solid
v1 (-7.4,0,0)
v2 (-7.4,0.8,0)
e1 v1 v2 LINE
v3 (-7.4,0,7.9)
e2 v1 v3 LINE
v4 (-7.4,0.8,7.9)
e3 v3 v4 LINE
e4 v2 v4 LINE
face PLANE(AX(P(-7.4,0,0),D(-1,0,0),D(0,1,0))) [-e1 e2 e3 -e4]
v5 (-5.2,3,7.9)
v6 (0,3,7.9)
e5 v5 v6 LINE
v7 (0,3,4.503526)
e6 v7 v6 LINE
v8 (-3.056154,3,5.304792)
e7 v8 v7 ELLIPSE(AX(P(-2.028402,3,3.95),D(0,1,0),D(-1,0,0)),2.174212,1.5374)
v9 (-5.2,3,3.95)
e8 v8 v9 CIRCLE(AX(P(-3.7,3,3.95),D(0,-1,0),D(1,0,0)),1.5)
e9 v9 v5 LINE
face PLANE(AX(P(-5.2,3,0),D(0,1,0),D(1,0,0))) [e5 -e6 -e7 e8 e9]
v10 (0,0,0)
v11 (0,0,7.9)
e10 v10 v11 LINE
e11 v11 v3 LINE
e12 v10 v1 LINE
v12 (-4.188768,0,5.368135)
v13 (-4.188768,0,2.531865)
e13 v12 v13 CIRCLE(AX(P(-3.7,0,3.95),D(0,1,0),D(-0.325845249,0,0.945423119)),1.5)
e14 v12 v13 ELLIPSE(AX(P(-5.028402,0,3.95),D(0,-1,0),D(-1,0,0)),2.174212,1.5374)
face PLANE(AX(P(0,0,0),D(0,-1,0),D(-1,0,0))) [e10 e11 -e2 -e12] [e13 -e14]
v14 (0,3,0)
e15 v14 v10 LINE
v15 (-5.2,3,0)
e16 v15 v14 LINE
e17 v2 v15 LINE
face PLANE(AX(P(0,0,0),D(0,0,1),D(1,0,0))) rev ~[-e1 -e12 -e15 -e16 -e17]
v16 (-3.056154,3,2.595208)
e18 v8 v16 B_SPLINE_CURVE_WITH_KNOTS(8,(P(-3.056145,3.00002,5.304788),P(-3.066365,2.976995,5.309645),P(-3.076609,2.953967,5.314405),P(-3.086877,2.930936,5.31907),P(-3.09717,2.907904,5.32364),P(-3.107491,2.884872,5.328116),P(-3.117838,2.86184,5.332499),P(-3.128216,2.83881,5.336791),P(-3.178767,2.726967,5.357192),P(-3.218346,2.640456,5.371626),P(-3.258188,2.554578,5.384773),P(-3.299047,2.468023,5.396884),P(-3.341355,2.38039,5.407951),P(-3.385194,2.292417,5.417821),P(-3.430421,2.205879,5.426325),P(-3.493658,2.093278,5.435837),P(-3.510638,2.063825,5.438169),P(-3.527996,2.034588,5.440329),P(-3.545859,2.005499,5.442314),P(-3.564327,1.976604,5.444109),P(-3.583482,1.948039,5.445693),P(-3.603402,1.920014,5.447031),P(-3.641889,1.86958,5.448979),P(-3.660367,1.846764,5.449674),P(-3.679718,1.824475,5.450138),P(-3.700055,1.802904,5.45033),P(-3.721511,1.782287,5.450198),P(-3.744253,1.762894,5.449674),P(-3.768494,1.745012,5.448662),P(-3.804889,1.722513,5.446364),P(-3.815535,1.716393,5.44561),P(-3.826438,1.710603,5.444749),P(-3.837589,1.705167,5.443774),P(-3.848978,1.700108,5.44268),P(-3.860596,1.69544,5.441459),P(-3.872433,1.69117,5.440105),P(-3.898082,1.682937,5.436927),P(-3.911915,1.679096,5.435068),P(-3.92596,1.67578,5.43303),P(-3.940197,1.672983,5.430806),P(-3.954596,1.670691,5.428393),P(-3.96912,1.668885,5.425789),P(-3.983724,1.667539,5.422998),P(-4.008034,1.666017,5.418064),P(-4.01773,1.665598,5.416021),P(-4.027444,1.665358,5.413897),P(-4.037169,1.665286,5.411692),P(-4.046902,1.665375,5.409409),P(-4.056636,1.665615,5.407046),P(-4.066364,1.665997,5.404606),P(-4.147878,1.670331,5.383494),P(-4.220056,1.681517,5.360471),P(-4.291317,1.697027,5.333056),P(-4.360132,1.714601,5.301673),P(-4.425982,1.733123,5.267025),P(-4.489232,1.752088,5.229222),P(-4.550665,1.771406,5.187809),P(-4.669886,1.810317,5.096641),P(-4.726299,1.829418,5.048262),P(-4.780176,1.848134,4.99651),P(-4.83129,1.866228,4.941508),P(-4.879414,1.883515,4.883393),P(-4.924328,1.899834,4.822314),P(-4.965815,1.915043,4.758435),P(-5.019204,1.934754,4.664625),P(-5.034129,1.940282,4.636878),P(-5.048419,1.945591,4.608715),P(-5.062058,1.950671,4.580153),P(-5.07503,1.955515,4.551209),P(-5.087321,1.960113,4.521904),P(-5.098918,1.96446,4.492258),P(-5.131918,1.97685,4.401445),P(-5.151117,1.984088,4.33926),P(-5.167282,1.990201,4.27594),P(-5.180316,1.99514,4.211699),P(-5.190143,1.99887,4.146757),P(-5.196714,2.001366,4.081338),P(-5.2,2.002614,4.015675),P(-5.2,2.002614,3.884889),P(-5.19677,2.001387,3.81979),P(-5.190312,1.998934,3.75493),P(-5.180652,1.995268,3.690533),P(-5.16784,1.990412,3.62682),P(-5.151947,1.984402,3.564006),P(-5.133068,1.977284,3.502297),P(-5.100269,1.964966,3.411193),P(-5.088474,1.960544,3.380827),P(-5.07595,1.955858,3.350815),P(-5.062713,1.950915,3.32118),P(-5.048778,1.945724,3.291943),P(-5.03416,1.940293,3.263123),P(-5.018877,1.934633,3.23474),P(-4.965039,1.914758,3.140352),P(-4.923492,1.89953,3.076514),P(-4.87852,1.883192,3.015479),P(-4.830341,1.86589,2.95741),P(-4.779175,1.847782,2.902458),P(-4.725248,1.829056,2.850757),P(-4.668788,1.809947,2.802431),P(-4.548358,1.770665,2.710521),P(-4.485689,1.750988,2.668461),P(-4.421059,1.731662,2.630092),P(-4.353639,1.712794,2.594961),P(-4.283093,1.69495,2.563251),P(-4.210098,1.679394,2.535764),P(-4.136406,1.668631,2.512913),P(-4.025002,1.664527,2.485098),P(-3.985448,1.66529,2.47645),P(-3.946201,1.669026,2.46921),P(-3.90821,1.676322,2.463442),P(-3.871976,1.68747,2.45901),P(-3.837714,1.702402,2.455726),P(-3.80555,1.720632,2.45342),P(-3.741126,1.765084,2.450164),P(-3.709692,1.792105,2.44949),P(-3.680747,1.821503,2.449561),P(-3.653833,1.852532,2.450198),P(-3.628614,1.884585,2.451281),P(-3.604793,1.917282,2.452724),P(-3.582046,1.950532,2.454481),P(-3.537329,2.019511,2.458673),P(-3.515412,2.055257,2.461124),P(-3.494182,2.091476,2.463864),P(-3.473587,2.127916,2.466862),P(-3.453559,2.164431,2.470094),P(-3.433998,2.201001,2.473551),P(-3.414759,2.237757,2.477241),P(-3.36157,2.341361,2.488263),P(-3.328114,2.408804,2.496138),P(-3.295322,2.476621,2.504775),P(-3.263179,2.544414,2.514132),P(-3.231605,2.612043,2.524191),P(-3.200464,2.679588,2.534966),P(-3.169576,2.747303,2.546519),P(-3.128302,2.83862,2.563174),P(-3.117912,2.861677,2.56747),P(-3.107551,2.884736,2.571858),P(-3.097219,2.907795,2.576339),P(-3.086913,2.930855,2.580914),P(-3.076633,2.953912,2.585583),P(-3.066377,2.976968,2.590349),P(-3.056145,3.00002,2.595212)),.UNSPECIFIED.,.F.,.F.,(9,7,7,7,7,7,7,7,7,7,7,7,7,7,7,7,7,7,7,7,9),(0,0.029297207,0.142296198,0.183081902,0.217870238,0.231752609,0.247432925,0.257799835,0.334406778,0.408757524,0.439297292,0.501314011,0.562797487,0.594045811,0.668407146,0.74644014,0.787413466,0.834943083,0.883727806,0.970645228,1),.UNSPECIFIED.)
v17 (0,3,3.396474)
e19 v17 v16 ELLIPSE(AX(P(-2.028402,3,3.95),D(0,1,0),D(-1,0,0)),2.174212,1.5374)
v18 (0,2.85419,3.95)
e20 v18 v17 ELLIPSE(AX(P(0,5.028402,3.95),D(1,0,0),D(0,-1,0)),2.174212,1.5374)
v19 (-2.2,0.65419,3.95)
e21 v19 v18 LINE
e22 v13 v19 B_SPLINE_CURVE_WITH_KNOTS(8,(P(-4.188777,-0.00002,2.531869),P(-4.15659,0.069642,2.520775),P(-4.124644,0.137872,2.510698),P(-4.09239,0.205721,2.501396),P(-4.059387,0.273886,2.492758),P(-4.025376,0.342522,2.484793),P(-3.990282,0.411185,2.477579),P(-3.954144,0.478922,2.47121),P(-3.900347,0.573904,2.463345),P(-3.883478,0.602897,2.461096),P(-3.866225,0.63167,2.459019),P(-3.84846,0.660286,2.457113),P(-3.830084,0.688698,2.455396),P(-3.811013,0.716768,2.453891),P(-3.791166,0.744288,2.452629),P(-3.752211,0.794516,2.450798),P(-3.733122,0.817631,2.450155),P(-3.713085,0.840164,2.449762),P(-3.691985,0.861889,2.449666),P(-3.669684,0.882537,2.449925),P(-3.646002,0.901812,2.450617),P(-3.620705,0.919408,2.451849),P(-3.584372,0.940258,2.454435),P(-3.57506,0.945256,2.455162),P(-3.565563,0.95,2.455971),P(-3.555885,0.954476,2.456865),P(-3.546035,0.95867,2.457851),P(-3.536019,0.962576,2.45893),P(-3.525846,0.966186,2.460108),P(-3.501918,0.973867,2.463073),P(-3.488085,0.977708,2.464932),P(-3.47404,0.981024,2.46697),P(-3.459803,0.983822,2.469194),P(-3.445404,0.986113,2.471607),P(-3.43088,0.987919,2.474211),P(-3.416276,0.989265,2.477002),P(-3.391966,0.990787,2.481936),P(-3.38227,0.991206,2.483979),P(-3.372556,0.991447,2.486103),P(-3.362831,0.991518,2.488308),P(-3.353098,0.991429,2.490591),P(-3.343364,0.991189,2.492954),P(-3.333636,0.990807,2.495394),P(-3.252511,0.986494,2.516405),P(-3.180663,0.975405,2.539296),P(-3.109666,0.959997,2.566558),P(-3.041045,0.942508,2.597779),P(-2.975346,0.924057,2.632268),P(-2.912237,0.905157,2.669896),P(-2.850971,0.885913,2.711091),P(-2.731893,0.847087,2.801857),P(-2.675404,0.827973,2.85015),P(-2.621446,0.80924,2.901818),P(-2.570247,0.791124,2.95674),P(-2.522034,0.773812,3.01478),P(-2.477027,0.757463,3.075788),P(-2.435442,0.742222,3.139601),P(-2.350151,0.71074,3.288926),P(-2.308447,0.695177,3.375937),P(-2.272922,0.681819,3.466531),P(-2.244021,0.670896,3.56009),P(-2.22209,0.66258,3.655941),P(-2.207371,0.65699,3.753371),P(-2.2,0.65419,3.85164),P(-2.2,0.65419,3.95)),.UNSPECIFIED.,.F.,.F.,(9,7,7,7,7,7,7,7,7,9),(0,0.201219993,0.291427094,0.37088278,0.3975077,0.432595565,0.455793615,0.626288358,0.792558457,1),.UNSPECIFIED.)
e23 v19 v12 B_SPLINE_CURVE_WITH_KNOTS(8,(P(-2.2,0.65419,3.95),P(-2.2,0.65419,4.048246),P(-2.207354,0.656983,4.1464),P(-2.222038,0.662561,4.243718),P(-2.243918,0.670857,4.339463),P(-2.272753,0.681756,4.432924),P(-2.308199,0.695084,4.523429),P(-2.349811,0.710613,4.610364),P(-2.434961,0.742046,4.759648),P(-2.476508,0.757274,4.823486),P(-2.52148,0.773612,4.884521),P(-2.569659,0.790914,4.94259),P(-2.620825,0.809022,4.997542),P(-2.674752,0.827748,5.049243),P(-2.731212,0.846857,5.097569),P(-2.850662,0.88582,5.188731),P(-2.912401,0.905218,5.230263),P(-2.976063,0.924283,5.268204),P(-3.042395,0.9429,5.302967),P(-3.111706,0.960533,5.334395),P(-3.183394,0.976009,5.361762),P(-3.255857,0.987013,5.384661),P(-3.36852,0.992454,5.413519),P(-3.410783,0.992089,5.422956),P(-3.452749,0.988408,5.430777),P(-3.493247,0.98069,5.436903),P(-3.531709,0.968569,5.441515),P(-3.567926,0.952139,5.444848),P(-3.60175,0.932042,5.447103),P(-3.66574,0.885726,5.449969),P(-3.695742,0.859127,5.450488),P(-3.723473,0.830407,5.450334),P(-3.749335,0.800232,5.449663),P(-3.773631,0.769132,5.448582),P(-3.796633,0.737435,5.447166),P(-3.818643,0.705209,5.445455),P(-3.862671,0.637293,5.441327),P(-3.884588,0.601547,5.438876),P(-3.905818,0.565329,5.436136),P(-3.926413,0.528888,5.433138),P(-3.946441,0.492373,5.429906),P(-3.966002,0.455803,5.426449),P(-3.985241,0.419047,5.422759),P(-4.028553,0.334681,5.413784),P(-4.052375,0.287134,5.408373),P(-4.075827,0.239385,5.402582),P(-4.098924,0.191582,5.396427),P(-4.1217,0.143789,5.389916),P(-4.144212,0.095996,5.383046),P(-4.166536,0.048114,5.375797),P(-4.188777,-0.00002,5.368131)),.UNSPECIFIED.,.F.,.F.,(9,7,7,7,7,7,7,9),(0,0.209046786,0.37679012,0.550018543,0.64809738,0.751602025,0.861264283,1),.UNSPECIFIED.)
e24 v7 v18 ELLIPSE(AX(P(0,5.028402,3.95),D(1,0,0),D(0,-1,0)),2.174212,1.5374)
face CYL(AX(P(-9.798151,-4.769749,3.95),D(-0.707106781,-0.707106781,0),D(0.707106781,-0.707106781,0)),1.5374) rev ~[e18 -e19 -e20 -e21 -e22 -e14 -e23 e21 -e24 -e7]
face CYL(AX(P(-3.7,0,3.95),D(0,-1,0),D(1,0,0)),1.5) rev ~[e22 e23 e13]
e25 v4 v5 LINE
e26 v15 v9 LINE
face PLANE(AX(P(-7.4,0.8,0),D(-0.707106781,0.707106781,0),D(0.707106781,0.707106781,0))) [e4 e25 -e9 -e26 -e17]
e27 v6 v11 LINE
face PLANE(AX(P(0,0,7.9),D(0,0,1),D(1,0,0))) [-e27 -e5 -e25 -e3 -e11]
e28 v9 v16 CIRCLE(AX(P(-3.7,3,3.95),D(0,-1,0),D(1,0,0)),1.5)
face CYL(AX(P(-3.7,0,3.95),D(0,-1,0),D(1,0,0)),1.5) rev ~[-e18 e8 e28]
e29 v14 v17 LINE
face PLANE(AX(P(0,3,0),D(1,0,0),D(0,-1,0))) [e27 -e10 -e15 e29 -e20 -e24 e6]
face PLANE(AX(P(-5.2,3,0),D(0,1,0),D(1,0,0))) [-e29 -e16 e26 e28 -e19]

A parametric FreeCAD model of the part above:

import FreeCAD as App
import Part
import Sketcher

V = App.Vector
Q = App.Units.Quantity

doc = App.newDocument("Part")
body = doc.addObject("PartDesign::Body", "Body")

sketch1 = body.newObject("Sketcher::SketchObject", "Sketch")
sketch1.AttachmentSupport = (doc.getObject("XY_Plane"), [""])
sketch1.MapMode = "FlatFace"
sketch1.addGeometry([
    Part.LineSegment(V(-7.4, 0, 0), V(0, 0, 0)),
    Part.LineSegment(V(0, 0, 0), V(0, 3, 0)),
    Part.LineSegment(V(0, 3, 0), V(-5.2, 3, 0)),
    Part.LineSegment(V(-5.2, 3, 0), V(-7.4, 0.8, 0)),
    Part.LineSegment(V(-7.4, 0.8, 0), V(-7.4, 0, 0)),
], False)
sketch1.addConstraint([
    Sketcher.Constraint("Coincident", 0, 2, 1, 1),
    Sketcher.Constraint("Coincident", 1, 2, 2, 1),
    Sketcher.Constraint("Coincident", 2, 2, 3, 1),
    Sketcher.Constraint("Coincident", 3, 2, 4, 1),
    Sketcher.Constraint("Coincident", 4, 2, 0, 1),
    Sketcher.Constraint("Horizontal", 0),
    Sketcher.Constraint("Vertical", 1),
    Sketcher.Constraint("Horizontal", 2),
    Sketcher.Constraint("Vertical", 4),
    Sketcher.Constraint("Coincident", 0, 2, -1, 1),
    Sketcher.Constraint("DistanceY", 1, 1, 1, 2, Q("3 mm")),
    Sketcher.Constraint("Angle", 3, Q("-135 deg")),
    Sketcher.Constraint("DistanceX", 0, 1, 0, 2, Q("7.4 mm")),
    Sketcher.Constraint("DistanceX", 3, 2, 2, 2, Q("2.2 mm")),
])
pad1 = body.newObject("PartDesign::Pad", "Pad")
pad1.Profile = sketch1
pad1.Length = 7.9

sketch2 = body.newObject("Sketcher::SketchObject", "Sketch001")
sketch2.AttachmentSupport = (doc.getObject("XZ_Plane"), [""])
sketch2.MapMode = "FlatFace"
sketch2.addGeometry(Part.Circle(V(-3.7, 4, 0), V(0, 0, 1), 1.5), False)
sketch2.addConstraint([
    Sketcher.Constraint("Diameter", 0, Q("3 mm")),
    Sketcher.Constraint("DistanceX", 0, 3, -1, 1, Q("3.7 mm")),
    Sketcher.Constraint("DistanceY", -1, 1, 0, 3, Q("3.95 mm")),
])
pocket1 = body.newObject("PartDesign::Pocket", "Pocket")
pocket1.Profile = sketch2
pocket1.Length = 7.9

sketch3 = body.newObject("Sketcher::SketchObject", "Sketch002")
sketch3.Placement = App.Placement(V(-15.6286, 1.0607, 21.7368), App.Rotation(V(0.707106781, -0.707106781, 0), V(0, 0, 0.999999999), V(-0.707106781, -0.707106781, 0), "ZXY"))
sketch3.addGeometry(Part.Circle(V(8.2, -17.8, 0), V(0, 0, 1), 1.5), False)
sketch3.addConstraint([
    Sketcher.Constraint("Diameter", 0, Q("3.0748 mm")),
    Sketcher.Constraint("DistanceX", -1, 1, 0, 3, Q("8.2455 mm")),
    Sketcher.Constraint("DistanceY", 0, 3, -1, 1, Q("17.7868 mm")),
])
pocket2 = body.newObject("PartDesign::Pocket", "Pocket001")
pocket2.Profile = sketch3
pocket2.Type = "ThroughAll"

doc.recompute()
